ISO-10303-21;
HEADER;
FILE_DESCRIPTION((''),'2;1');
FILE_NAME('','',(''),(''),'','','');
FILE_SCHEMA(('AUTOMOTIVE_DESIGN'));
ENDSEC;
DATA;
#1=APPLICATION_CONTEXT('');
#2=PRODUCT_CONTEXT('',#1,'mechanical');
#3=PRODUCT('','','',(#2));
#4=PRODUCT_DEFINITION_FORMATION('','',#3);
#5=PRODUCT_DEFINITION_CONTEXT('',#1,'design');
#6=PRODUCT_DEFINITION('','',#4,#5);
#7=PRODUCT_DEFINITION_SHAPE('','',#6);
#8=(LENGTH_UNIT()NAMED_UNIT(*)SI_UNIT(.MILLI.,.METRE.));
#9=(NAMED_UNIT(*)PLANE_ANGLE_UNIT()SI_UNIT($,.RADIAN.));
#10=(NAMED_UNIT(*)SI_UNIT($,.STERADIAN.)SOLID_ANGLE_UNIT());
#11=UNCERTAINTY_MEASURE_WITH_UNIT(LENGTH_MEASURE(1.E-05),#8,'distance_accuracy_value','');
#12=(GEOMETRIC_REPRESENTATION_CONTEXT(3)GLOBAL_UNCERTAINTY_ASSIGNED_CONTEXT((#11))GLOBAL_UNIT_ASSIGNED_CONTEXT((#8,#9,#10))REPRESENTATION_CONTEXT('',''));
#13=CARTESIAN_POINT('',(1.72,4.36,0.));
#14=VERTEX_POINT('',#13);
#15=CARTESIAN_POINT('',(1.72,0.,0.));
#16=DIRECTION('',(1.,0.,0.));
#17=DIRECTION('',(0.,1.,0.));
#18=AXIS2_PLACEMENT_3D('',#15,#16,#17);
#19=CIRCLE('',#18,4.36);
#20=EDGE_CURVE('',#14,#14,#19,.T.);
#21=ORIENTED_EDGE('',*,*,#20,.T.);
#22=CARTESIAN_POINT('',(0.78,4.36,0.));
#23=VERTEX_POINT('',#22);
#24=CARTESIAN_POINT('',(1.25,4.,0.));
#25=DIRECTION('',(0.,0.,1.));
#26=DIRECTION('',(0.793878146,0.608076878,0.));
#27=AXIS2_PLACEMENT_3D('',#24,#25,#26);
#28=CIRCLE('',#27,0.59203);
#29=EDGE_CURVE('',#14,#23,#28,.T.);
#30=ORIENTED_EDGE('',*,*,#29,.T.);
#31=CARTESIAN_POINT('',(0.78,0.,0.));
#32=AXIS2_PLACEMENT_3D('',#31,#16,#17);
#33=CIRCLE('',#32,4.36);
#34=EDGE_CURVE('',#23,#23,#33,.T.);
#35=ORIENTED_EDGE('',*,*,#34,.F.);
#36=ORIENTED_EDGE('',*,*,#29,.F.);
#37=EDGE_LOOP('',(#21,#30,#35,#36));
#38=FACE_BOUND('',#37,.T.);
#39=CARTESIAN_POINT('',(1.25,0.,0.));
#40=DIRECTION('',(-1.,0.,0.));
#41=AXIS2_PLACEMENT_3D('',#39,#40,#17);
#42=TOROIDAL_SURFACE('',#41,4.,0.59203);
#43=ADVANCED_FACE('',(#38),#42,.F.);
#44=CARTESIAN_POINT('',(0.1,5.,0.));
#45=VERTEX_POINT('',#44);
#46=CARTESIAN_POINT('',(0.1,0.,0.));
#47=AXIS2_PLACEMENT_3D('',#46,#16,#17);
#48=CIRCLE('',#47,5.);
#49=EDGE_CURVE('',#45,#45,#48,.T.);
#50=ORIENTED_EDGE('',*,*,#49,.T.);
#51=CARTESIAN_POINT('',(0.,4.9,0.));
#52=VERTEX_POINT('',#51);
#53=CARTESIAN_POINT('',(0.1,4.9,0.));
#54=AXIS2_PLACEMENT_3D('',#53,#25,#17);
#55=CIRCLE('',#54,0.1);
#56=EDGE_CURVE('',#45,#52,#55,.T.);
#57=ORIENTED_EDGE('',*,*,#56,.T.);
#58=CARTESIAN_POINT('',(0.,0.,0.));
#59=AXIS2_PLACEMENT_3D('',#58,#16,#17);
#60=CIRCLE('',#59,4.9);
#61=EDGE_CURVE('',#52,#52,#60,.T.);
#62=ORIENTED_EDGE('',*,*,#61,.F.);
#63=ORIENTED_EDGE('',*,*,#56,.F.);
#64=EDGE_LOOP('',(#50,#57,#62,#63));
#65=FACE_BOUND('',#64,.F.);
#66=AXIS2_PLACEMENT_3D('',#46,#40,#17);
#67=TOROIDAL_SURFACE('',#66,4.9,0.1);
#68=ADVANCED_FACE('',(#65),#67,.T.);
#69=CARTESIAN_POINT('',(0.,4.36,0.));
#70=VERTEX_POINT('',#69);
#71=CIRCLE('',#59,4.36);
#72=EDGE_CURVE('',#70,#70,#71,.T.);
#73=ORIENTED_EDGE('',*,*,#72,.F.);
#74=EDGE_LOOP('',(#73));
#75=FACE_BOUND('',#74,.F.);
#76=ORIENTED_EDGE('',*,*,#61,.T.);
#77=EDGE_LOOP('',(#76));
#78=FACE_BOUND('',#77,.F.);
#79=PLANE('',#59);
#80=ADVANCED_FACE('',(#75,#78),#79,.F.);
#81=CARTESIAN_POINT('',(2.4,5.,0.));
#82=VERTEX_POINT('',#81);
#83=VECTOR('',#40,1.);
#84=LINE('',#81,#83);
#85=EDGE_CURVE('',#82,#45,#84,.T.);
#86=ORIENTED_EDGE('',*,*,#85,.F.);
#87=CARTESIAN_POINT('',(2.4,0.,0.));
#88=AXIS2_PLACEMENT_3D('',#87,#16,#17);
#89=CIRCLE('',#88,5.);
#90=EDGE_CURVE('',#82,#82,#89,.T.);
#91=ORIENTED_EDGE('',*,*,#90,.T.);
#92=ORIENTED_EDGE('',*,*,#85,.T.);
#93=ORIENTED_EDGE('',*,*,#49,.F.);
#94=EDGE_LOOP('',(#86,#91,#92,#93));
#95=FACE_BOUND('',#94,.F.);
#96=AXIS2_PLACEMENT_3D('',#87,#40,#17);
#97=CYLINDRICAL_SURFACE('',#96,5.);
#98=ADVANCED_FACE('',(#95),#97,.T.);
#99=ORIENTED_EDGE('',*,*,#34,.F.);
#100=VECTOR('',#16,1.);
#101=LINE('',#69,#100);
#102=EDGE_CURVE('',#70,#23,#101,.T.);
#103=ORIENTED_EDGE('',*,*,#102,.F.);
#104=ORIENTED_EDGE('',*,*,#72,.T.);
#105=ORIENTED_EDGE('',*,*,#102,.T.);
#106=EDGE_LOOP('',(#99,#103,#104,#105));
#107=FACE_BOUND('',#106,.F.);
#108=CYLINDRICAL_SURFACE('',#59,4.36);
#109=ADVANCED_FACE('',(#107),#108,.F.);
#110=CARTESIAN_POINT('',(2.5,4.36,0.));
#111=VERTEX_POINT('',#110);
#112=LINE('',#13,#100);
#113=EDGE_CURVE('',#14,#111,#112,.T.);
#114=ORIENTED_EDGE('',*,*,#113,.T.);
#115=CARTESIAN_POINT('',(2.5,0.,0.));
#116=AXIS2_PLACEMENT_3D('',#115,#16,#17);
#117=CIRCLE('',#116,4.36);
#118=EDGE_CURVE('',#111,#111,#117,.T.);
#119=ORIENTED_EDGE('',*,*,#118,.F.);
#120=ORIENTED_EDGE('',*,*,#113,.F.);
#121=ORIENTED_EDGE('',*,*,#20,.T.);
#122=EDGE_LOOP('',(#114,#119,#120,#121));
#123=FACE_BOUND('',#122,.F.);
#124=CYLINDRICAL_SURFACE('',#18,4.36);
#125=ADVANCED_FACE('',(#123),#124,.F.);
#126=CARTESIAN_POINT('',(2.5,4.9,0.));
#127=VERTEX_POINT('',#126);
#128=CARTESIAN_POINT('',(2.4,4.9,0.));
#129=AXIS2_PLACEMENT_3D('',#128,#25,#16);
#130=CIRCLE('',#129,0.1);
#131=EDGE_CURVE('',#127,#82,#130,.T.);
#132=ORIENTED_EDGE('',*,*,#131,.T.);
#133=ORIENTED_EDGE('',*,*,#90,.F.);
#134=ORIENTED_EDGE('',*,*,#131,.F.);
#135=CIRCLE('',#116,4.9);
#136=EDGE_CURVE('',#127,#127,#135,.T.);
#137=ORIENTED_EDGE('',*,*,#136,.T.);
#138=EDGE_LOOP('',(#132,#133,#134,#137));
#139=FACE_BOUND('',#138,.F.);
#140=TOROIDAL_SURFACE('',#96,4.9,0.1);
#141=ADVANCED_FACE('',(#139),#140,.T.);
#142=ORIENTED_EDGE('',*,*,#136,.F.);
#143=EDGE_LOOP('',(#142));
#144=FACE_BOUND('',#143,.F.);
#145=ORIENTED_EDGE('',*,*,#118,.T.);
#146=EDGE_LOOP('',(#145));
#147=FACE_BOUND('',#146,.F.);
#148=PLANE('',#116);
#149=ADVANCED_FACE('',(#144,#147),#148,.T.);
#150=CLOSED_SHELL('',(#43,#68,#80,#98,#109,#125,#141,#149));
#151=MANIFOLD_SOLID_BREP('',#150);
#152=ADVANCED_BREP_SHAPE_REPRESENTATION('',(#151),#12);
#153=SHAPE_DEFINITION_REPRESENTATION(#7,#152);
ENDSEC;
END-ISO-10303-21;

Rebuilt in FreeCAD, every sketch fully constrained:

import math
import FreeCAD as App
import Part
import Sketcher
from FreeCAD import Vector
Q = App.Units.Quantity

doc = App.newDocument("Part")
body = doc.addObject("PartDesign::Body", "Body")

# Sketch on XY plane
sketch1 = body.newObject("Sketcher::SketchObject", "Sketch")
sketch1.AttachmentSupport = (doc.getObject("XY_Plane"), [""])
sketch1.MapMode = "FlatFace"
sketch1.addGeometry(Part.ArcOfCircle(Part.Circle(Vector(0.1, 4.9, 0), Vector(0, 0, 1), 0.1), math.radians(90), math.radians(180)), False)
sketch1.addGeometry(Part.LineSegment(Vector(0, 4.9, 0), Vector(0, 4.36, 0)), False)
sketch1.addGeometry(Part.LineSegment(Vector(0, 4.36, 0), Vector(0.78, 4.36, 0)), False)
sketch1.addGeometry(Part.ArcOfCircle(Part.Circle(Vector(1.25, 4, 0), Vector(0, 0, 1), 0.59203), math.radians(37.450578), math.radians(142.549422)), False)
sketch1.addGeometry(Part.LineSegment(Vector(1.72, 4.36, 0), Vector(2.5, 4.36, 0)), False)
sketch1.addGeometry(Part.LineSegment(Vector(2.5, 4.36, 0), Vector(2.5, 4.9, 0)), False)
sketch1.addGeometry(Part.ArcOfCircle(Part.Circle(Vector(2.4, 4.9, 0), Vector(0, 0, 1), 0.1), math.radians(0), math.radians(90)), False)
sketch1.addGeometry(Part.LineSegment(Vector(2.4, 5, 0), Vector(0.1, 5, 0)), False)
sketch1.addConstraint(Sketcher.Constraint("Tangent", 0, 2, 1, 1))
sketch1.addConstraint(Sketcher.Constraint("Coincident", 1, 2, 2, 1))
sketch1.addConstraint(Sketcher.Constraint("Coincident", 2, 2, 3, 2))
sketch1.addConstraint(Sketcher.Constraint("Coincident", 3, 1, 4, 1))
sketch1.addConstraint(Sketcher.Constraint("Coincident", 4, 2, 5, 1))
sketch1.addConstraint(Sketcher.Constraint("Tangent", 5, 2, 6, 1))
sketch1.addConstraint(Sketcher.Constraint("Tangent", 6, 2, 7, 1))
sketch1.addConstraint(Sketcher.Constraint("Tangent", 7, 2, 0, 1))
sketch1.addConstraint(Sketcher.Constraint("Vertical", 1))
sketch1.addConstraint(Sketcher.Constraint("Horizontal", 2))
sketch1.addConstraint(Sketcher.Constraint("Horizontal", 4))
sketch1.addConstraint(Sketcher.Constraint("Vertical", 5))
sketch1.addConstraint(Sketcher.Constraint("Horizontal", 7))
sketch1.addConstraint(Sketcher.Constraint("Equal", 0, 6))
sketch1.addConstraint(Sketcher.Constraint("PointOnObject", 0, 2, -2))
sketch1.addConstraint(Sketcher.Constraint("Horizontal", 2, 2, 3, 1))
sketch1.addConstraint(Sketcher.Constraint("Equal", 2, 4))
sketch1.addConstraint(Sketcher.Constraint("Radius", 0, Q("0.1 mm")))
sketch1.addConstraint(Sketcher.Constraint("DistanceX", 7, 2, 7, 1, Q("2.3 mm")))
sketch1.addConstraint(Sketcher.Constraint("DistanceY", -1, 1, 3, 3, Q("4 mm")))
sketch1.addConstraint(Sketcher.Constraint("DistanceY", -1, 1, 6, 2, Q("5 mm")))
sketch1.addConstraint(Sketcher.Constraint("Radius", 3, Q("0.592 mm")))
sketch1.addConstraint(Sketcher.Constraint("DistanceX", 2, 1, 2, 2, Q("0.78 mm")))
revolution = body.newObject("PartDesign::Revolution", "Revolution")
revolution.Profile = sketch1
revolution.ReferenceAxis = (sketch1, ["H_Axis"])
revolution.Angle = 360

doc.recompute()
